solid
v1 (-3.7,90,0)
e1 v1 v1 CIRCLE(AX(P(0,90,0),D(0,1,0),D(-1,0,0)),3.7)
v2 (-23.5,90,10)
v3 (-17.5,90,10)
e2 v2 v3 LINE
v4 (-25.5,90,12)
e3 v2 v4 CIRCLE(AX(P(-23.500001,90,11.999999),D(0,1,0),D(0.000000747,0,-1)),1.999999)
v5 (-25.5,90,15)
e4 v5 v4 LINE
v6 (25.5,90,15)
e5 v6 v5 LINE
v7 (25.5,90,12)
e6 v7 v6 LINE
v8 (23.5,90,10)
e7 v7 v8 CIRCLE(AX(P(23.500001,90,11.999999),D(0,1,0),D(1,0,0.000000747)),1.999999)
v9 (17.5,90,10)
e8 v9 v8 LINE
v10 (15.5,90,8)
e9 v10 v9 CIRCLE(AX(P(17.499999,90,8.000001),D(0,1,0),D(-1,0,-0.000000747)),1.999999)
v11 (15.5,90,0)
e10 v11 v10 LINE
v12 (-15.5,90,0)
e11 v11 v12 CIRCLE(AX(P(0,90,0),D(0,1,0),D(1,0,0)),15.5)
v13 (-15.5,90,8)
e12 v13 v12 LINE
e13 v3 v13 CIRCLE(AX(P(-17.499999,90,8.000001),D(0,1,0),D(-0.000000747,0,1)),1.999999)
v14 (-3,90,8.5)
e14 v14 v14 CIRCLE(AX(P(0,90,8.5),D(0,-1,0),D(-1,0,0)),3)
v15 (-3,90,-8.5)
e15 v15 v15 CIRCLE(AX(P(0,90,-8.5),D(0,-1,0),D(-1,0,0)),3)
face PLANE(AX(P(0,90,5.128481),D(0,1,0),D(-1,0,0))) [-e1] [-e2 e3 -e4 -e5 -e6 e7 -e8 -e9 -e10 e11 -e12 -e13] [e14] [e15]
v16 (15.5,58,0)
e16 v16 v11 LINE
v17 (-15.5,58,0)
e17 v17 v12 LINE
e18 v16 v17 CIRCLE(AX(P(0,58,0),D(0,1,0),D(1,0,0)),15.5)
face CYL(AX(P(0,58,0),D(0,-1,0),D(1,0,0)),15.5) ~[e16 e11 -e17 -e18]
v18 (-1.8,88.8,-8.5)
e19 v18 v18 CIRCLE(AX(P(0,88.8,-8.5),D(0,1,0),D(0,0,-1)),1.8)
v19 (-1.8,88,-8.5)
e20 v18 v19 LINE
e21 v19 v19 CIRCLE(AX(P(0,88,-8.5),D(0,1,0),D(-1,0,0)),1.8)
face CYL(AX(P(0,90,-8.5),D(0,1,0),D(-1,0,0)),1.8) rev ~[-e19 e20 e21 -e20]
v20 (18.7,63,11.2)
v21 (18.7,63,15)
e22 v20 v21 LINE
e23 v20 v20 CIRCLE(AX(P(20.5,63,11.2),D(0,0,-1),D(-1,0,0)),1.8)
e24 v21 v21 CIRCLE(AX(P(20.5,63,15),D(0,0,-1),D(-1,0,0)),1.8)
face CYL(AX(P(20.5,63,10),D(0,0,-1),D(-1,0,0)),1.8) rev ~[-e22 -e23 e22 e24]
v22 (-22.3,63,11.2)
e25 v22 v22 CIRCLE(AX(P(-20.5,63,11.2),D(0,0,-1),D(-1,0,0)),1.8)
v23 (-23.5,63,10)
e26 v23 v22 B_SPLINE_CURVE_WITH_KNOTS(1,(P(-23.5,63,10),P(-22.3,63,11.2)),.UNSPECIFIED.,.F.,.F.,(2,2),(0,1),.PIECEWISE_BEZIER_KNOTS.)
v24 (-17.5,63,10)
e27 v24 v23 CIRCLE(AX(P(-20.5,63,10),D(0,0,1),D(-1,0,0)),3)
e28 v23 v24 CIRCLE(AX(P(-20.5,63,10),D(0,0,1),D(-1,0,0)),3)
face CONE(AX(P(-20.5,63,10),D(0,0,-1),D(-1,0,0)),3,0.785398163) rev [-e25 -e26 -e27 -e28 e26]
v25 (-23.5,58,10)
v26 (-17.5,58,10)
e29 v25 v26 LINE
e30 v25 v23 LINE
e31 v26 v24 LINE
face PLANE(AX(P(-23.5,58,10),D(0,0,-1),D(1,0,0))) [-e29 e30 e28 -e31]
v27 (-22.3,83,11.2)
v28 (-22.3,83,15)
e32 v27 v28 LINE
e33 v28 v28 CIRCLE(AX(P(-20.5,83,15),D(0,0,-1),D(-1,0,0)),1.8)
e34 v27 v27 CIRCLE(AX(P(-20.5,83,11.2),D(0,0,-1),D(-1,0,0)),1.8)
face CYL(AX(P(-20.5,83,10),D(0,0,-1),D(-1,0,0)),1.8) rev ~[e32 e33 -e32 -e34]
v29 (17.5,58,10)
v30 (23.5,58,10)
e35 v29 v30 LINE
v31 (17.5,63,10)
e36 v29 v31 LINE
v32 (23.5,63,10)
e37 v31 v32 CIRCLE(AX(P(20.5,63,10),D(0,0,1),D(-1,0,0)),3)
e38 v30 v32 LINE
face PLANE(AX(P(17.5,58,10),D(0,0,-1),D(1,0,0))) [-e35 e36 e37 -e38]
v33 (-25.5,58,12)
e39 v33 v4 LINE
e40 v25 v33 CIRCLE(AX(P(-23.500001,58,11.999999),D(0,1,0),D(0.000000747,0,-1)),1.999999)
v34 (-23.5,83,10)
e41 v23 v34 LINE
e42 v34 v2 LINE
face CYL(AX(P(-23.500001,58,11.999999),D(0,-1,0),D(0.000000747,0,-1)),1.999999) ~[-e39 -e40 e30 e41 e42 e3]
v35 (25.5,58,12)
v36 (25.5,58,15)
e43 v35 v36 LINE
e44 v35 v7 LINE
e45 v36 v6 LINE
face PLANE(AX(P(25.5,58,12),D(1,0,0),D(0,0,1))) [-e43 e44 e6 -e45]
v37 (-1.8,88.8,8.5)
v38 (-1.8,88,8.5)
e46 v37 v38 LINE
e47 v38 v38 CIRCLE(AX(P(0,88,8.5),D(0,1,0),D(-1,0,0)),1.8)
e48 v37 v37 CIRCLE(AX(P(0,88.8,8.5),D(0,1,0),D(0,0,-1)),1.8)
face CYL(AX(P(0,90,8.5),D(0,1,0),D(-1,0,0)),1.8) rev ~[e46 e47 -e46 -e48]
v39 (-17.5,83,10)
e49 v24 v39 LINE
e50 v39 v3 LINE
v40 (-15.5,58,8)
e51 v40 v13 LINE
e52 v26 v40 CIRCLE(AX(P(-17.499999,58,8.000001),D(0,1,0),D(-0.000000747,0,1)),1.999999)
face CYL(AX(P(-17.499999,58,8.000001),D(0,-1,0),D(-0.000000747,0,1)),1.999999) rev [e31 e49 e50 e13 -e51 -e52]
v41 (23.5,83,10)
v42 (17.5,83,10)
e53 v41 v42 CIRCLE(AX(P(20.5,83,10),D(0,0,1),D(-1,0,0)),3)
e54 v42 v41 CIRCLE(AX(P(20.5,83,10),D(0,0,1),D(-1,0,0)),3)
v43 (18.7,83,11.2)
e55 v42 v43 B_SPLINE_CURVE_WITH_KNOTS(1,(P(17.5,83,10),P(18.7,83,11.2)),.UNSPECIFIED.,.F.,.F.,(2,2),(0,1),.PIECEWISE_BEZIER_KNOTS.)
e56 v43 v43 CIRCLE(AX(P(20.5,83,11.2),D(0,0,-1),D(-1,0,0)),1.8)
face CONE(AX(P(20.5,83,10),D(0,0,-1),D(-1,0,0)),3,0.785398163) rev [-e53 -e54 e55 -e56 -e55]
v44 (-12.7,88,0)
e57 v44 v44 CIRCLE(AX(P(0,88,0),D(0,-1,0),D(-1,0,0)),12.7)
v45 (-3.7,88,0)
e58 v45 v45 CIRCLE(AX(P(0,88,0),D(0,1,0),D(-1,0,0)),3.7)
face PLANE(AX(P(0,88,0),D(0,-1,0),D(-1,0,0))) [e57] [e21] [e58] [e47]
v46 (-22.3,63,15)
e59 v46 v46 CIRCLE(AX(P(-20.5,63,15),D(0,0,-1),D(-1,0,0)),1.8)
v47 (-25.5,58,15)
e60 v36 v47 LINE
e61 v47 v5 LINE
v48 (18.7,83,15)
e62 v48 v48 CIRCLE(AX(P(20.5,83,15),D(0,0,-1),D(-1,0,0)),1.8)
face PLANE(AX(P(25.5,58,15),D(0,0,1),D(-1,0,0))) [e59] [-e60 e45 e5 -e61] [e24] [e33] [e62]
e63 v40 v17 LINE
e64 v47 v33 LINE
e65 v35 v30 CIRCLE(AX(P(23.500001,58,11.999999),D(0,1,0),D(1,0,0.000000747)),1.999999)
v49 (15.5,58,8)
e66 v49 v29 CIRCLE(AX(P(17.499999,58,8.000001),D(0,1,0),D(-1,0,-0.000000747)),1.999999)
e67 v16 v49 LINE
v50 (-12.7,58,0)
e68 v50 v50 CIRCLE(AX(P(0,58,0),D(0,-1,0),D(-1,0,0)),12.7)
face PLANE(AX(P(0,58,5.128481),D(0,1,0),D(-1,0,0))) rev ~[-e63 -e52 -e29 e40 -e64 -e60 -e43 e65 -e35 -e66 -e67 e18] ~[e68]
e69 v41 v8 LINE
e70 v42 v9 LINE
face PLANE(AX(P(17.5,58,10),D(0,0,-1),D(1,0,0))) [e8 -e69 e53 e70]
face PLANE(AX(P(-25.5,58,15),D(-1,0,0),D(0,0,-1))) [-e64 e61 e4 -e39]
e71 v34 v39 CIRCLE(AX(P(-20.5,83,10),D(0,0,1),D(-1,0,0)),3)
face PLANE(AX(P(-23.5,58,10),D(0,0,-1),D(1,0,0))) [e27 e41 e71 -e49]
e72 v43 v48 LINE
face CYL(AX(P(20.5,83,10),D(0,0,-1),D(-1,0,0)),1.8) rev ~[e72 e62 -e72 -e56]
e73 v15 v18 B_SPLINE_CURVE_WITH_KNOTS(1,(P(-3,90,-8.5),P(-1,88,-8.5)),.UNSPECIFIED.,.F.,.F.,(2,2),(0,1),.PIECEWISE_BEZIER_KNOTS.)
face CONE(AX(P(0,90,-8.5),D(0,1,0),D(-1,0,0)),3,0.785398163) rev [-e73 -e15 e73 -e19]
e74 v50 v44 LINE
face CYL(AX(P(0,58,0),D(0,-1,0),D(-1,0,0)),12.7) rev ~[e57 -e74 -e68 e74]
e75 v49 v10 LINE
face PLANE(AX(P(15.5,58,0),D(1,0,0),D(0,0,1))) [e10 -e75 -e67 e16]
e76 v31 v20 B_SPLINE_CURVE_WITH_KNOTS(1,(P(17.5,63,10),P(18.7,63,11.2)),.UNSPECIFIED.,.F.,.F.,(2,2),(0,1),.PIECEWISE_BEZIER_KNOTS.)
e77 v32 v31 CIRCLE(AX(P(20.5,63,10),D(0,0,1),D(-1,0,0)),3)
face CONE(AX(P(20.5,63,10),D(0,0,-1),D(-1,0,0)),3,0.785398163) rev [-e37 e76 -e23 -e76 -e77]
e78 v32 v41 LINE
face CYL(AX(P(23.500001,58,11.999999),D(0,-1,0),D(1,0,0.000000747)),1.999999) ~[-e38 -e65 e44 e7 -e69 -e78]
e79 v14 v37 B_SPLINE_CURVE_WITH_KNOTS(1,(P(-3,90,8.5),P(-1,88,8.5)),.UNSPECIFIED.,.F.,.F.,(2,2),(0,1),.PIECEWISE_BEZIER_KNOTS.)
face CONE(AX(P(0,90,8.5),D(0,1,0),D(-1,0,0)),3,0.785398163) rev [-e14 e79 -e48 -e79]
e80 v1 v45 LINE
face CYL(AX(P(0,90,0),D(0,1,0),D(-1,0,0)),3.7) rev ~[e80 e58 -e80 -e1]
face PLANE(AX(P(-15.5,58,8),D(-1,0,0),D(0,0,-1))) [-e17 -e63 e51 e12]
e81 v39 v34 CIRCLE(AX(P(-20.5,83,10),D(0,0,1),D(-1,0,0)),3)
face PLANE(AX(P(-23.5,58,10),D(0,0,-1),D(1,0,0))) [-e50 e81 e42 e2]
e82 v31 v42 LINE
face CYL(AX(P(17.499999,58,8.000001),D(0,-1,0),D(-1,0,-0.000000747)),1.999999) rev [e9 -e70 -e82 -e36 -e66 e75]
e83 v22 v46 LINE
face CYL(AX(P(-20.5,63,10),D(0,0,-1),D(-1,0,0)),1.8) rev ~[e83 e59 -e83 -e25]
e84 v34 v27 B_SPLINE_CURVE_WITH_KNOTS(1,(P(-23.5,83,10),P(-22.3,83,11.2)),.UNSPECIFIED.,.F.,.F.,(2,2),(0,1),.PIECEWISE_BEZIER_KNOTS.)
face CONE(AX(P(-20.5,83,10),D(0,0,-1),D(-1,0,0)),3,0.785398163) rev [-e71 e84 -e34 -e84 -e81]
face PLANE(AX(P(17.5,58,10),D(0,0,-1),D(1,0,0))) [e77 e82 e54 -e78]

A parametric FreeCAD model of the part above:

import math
import FreeCAD as App
import Part
import Sketcher
from FreeCAD import Vector
Q = App.Units.Quantity

doc = App.newDocument("Part")
body = doc.addObject("PartDesign::Body", "Body")

# Sketch on XZ plane
sketch1 = doc.addObject("Sketcher::SketchObject", "Sketch")
body.addObject(sketch1)
sketch1.AttachmentSupport = (doc.XZ_Plane, [""])
sketch1.MapMode = "FlatFace"
sketch1.AttachmentOffset = App.Placement(Vector(0, 0, 60), App.Rotation())
sketch1.addGeometry([
    Part.ArcOfCircle(Part.Circle(Vector(0, 0, 0), Vector(0, 0, 1), 15.5), math.radians(180), math.radians(360)),  # 0
    Part.LineSegment(Vector(15.5, 0, 0), Vector(15.5, 8, 0)),  # 1
    Part.ArcOfCircle(Part.Circle(Vector(17.5, 8, 0), Vector(0, 0, 1), 2), math.radians(90), math.radians(180)),  # 2
    Part.LineSegment(Vector(17.5, 10, 0), Vector(23.5, 10, 0)),  # 3
    Part.ArcOfCircle(Part.Circle(Vector(23.5, 12, 0), Vector(0, 0, 1), 2), math.radians(-90), math.radians(0)),  # 4
    Part.LineSegment(Vector(25.5, 12, 0), Vector(25.5, 15, 0)),  # 5
    Part.LineSegment(Vector(25.5, 15, 0), Vector(-25.5, 15, 0)),  # 6
    Part.LineSegment(Vector(-25.5, 15, 0), Vector(-25.5, 12, 0)),  # 7
    Part.ArcOfCircle(Part.Circle(Vector(-23.5, 12, 0), Vector(0, 0, 1), 2), math.radians(180), math.radians(270)),  # 8
    Part.LineSegment(Vector(-23.5, 10, 0), Vector(-17.5, 10, 0)),  # 9
    Part.ArcOfCircle(Part.Circle(Vector(-17.5, 8, 0), Vector(0, 0, 1), 2), math.radians(0), math.radians(90)),  # 10
    Part.LineSegment(Vector(-15.5, 8, 0), Vector(-15.5, 0, 0)),  # 11
], False)
sketch1.addConstraint([
    Sketcher.Constraint("Tangent", 0, 2, 1, 1),
    Sketcher.Constraint("Tangent", 1, 2, 2, 2),
    Sketcher.Constraint("Tangent", 2, 1, 3, 1),
    Sketcher.Constraint("Tangent", 3, 2, 4, 1),
    Sketcher.Constraint("Tangent", 4, 2, 5, 1),
    Sketcher.Constraint("Coincident", 5, 2, 6, 1),
    Sketcher.Constraint("Coincident", 6, 2, 7, 1),
    Sketcher.Constraint("Tangent", 7, 2, 8, 1),
    Sketcher.Constraint("Tangent", 8, 2, 9, 1),
    Sketcher.Constraint("Tangent", 9, 2, 10, 2),
    Sketcher.Constraint("Tangent", 10, 1, 11, 1),
    Sketcher.Constraint("Tangent", 11, 2, 0, 1),
    Sketcher.Constraint("Vertical", 1),
    Sketcher.Constraint("Horizontal", 3),
    Sketcher.Constraint("Vertical", 5),
    Sketcher.Constraint("Horizontal", 6),
    Sketcher.Constraint("Vertical", 7),
    Sketcher.Constraint("Horizontal", 9),
    Sketcher.Constraint("Vertical", 11),
    Sketcher.Constraint("Coincident", 0, 3, -1, 1),
    Sketcher.Constraint("Equal", 2, 4),
    Sketcher.Constraint("Equal", 4, 8),
    Sketcher.Constraint("Equal", 8, 10),
    Sketcher.Constraint("Symmetric", 4, 3, 8, 3, -2),
    Sketcher.Constraint("Radius", 2, Q("1.999999 mm")),
    Sketcher.Constraint("Radius", 0, Q("15.5 mm")),
    Sketcher.Constraint("DistanceX", 3, 1, 3, 2, Q("6 mm")),
    Sketcher.Constraint("DistanceY", 1, 1, 1, 2, Q("8 mm")),
    Sketcher.Constraint("DistanceY", 5, 1, 5, 2, Q("3 mm")),
])
pad1 = doc.addObject("PartDesign::Pad", "Pad")
body.addObject(pad1)
pad1.Profile = sketch1
pad1.Length = 32

# Sketch on XZ plane
sketch2 = doc.addObject("Sketcher::SketchObject", "Sketch001")
body.addObject(sketch2)
sketch2.AttachmentSupport = (doc.XZ_Plane, [""])
sketch2.MapMode = "FlatFace"
sketch2.AttachmentOffset = App.Placement(Vector(0, 0, 60), App.Rotation())
sketch2.addGeometry(Part.Circle(Vector(0, 0, 0), Vector(0, 0, 1), 13), False)
sketch2.addConstraint([
    Sketcher.Constraint("Coincident", 0, 3, -1, 1),
    Sketcher.Constraint("Diameter", 0, Q("25.4 mm")),
])
pocket1 = doc.addObject("PartDesign::Pocket", "Pocket")
body.addObject(pocket1)
pocket1.Profile = sketch2
pocket1.Length = 30
pocket1.Reversed = True

# Sketch on XZ plane
sketch3 = doc.addObject("Sketcher::SketchObject", "Sketch002")
body.addObject(sketch3)
sketch3.AttachmentSupport = (doc.XZ_Plane, [""])
sketch3.MapMode = "FlatFace"
sketch3.AttachmentOffset = App.Placement(Vector(0, 0, 92), App.Rotation())
sketch3.addGeometry([
    Part.Circle(Vector(0, 8.5, 0), Vector(0, 0, 1), 1.8),
    Part.Circle(Vector(0, -8.5, 0), Vector(0, 0, 1), 1.8),
    Part.Circle(Vector(0, 0, 0), Vector(0, 0, 1), 3.7),
], False)
sketch3.addConstraint([
    Sketcher.Constraint("Coincident", 2, 3, -1, 1),
    Sketcher.Constraint("Equal", 0, 1),
    Sketcher.Constraint("Symmetric", 0, 3, 1, 3, -1, 1),
    Sketcher.Constraint("PointOnObject", 0, 3, -2),
    Sketcher.Constraint("Diameter", 0, Q("3.6 mm")),
    Sketcher.Constraint("Diameter", 2, Q("7.4 mm")),
    Sketcher.Constraint("DistanceY", 1, 3, 0, 3, Q("17 mm")),
])
pocket2 = doc.addObject("PartDesign::Pocket", "Pocket001")
body.addObject(pocket2)
pocket2.Profile = sketch3
pocket2.Length = 2

# Sketch on XY plane
sketch4 = doc.addObject("Sketcher::SketchObject", "Sketch003")
body.addObject(sketch4)
sketch4.AttachmentSupport = (doc.XY_Plane, [""])
sketch4.MapMode = "FlatFace"
sketch4.AttachmentOffset = App.Placement(Vector(0, 0, 10), App.Rotation())
sketch4.addGeometry([
    Part.Circle(Vector(-20.5, -85, 0), Vector(0, 0, 1), 1.8),
    Part.Circle(Vector(-20.5, -65, 0), Vector(0, 0, 1), 1.8),
    Part.Circle(Vector(20.5, -65, 0), Vector(0, 0, 1), 1.8),
    Part.Circle(Vector(20.5, -85, 0), Vector(0, 0, 1), 1.8),
], False)
sketch4.addConstraint([
    Sketcher.Constraint("Equal", 0, 1),
    Sketcher.Constraint("Equal", 1, 2),
    Sketcher.Constraint("Equal", 2, 3),
    Sketcher.Constraint("Symmetric", 1, 3, 2, 3, -2),
    Sketcher.Constraint("Symmetric", 0, 3, 3, 3, -2),
    Sketcher.Constraint("Vertical", 0, 3, 1, 3),
    Sketcher.Constraint("Diameter", 0, Q("3.6 mm")),
    Sketcher.Constraint("DistanceY", 0, 3, -1, 1, Q("85 mm")),
    Sketcher.Constraint("DistanceY", 1, 3, -1, 1, Q("65 mm")),
    Sketcher.Constraint("DistanceX", 1, 3, 2, 3, Q("41 mm")),
])
pocket3 = doc.addObject("PartDesign::Pocket", "Pocket002")
body.addObject(pocket3)
pocket3.Profile = sketch4
pocket3.Type = "ThroughAll"
pocket3.Reversed = True

# Sketch on XY plane
sketch5 = doc.addObject("Sketcher::SketchObject", "Sketch004")
body.addObject(sketch5)
sketch5.AttachmentSupport = (doc.XY_Plane, [""])
sketch5.MapMode = "FlatFace"
sketch5.AttachmentOffset = App.Placement(Vector(0, 0, 10), App.Rotation())
sketch5.addGeometry([
    Part.Circle(Vector(-20.5, -85, 0), Vector(0, 0, 1), 3),
    Part.Circle(Vector(20.5, -85, 0), Vector(0, 0, 1), 3),
    Part.Circle(Vector(20.5, -65, 0), Vector(0, 0, 1), 3),
    Part.Circle(Vector(-20.5, -65, 0), Vector(0, 0, 1), 3),
], False)
sketch5.addConstraint([
    Sketcher.Constraint("Equal", 0, 1),
    Sketcher.Constraint("Equal", 1, 2),
    Sketcher.Constraint("Equal", 2, 3),
    Sketcher.Constraint("Symmetric", 0, 3, 1, 3, -2),
    Sketcher.Constraint("Symmetric", 2, 3, 3, 3, -2),
    Sketcher.Constraint("Vertical", 1, 3, 2, 3),
    Sketcher.Constraint("Diameter", 0, Q("6 mm")),
    Sketcher.Constraint("DistanceY", 0, 3, -1, 1, Q("85 mm")),
    Sketcher.Constraint("DistanceY", 2, 3, -1, 1, Q("65 mm")),
    Sketcher.Constraint("DistanceX", 0, 3, 1, 3, Q("41 mm")),
])
pocket4 = doc.addObject("PartDesign::Pocket", "Pocket003")
body.addObject(pocket4)
pocket4.Profile = sketch5
pocket4.Length = 1.2
pocket4.Reversed = True
pocket4.TaperAngle = -45

# Sketch on XZ plane
sketch6 = doc.addObject("Sketcher::SketchObject", "Sketch005")
body.addObject(sketch6)
sketch6.AttachmentSupport = (doc.XZ_Plane, [""])
sketch6.MapMode = "FlatFace"
sketch6.AttachmentOffset = App.Placement(Vector(0, 0, 92), App.Rotation())
sketch6.addGeometry([
    Part.Circle(Vector(0, 8.5, 0), Vector(0, 0, 1), 3),
    Part.Circle(Vector(0, -8.5, 0), Vector(0, 0, 1), 3),
], False)
sketch6.addConstraint([
    Sketcher.Constraint("Equal", 0, 1),
    Sketcher.Constraint("Symmetric", 0, 3, 1, 3, -1, 1),
    Sketcher.Constraint("PointOnObject", 0, 3, -2),
    Sketcher.Constraint("Diameter", 0, Q("6 mm")),
    Sketcher.Constraint("DistanceY", 1, 3, 0, 3, Q("17 mm")),
])
pocket5 = doc.addObject("PartDesign::Pocket", "Pocket004")
body.addObject(pocket5)
pocket5.Profile = sketch6
pocket5.Length = 2
pocket5.TaperAngle = -45
body2 = doc.addObject("PartDesign::Body", "Body001")
doc.recompute()

body.Placement = App.Placement(Vector(0, -2, 0), App.Rotation(Vector(0, 0, 1), 180))
boolean = doc.addObject("PartDesign::Boolean", "Boolean")
body2.addObject(boolean)
boolean.Type = "Fuse"
boolean.addObjects([body])

doc.recompute()
